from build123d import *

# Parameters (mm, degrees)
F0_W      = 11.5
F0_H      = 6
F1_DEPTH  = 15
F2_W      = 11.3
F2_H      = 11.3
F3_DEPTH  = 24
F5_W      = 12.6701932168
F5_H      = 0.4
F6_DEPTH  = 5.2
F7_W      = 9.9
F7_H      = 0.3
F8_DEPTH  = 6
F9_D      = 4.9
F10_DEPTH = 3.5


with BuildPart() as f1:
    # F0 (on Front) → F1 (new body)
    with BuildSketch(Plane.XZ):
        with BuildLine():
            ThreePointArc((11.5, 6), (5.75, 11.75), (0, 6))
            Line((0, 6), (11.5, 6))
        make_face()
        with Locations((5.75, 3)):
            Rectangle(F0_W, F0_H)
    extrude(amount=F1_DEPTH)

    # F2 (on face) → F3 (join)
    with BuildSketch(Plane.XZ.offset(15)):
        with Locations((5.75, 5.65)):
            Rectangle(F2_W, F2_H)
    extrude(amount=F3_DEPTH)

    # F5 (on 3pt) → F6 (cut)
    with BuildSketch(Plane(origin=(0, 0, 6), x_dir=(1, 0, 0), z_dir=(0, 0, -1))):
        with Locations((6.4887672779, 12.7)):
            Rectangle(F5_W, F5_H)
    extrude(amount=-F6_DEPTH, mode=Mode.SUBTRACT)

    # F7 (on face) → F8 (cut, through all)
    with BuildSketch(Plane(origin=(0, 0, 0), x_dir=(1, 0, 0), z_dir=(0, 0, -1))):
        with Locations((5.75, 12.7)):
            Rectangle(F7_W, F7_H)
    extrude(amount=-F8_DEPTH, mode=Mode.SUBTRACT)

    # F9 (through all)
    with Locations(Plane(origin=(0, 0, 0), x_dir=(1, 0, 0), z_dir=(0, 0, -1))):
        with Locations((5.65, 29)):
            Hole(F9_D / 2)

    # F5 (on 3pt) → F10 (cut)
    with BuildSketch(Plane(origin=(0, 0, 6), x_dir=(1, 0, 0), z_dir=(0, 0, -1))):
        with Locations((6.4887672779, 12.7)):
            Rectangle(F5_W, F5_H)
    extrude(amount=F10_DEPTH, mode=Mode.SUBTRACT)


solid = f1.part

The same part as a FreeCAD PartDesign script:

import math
import FreeCAD as App
import Part
import Sketcher
Q = App.Units.Quantity

doc = App.newDocument("Part")
params = doc.addObject("Spreadsheet::Sheet", "Params")
for row, (alias, value) in enumerate([
    ("sketch1_height", "6 mm"),
    ("sketch1_radius", "5.75 mm"),
    ("pad1_length", "15 mm"),
    ("sketch2_width", "11.3 mm"),
    ("pad2_length", "24 mm"),
    ("sketch3_height", "0.4 mm"),
    ("pocket1_length", "5.2 mm"),
    ("sketch4_width", "9.9 mm"),
    ("sketch4_height", "0.3 mm"),
    ("pocket2_length", "6 mm"),
    ("sketch5_diameter", "4.9 mm"),
    ("hole_diameter", "4.9 mm"),
    ("sketch6_height", "0.4 mm"),
    ("pocket3_length", "3.5 mm"),
], start=1):
    params.set(f"A{row}", alias)
    params.set(f"B{row}", "=" + value)
    params.setAlias(f"B{row}", alias)

body = doc.addObject("PartDesign::Body", "Body")

sketch1 = doc.addObject("Sketcher::SketchObject", "Sketch")
body.addObject(sketch1)
sketch1.AttachmentSupport = (doc.XZ_Plane, [""])
sketch1.MapMode = "FlatFace"
sketch1.addGeometry([
    Part.ArcOfCircle(Part.Circle(App.Vector(6, 6, 0), App.Vector(0, 0, 1), 6), math.radians(0), math.radians(180)),
    Part.LineSegment(App.Vector(0, 6, 0), App.Vector(0, 0, 0)),
    Part.LineSegment(App.Vector(0, 0, 0), App.Vector(12, 0, 0)),
    Part.LineSegment(App.Vector(12, 0, 0), App.Vector(12, 6, 0)),
], False)
sketch1.addConstraint([
    Sketcher.Constraint("Tangent", 0, 2, 1, 1),
    Sketcher.Constraint("Coincident", 1, 2, 2, 1),
    Sketcher.Constraint("Coincident", 2, 2, 3, 1),
    Sketcher.Constraint("Tangent", 3, 2, 0, 1),
    Sketcher.Constraint("Vertical", 1),
    Sketcher.Constraint("Horizontal", 2),
    Sketcher.Constraint("Vertical", 3),
    Sketcher.Constraint("Coincident", 1, 2, -1, 1),
    Sketcher.Constraint("DistanceY", 1, 2, 1, 1, Q("6 mm")),
    Sketcher.Constraint("Radius", 0, Q("5.75 mm")),
])
sketch1.setExpression("Constraints[8]", "Params.sketch1_height")
sketch1.setExpression("Constraints[9]", "Params.sketch1_radius")
pad1 = doc.addObject("PartDesign::Pad", "Pad")
body.addObject(pad1)
pad1.Profile = sketch1
pad1.setExpression("Length", "Params.pad1_length")

sketch2 = doc.addObject("Sketcher::SketchObject", "Sketch001")
body.addObject(sketch2)
sketch2.AttachmentSupport = (doc.XZ_Plane, [""])
sketch2.MapMode = "FlatFace"
sketch2.AttachmentOffset = App.Placement(App.Vector(0, 0, 15), App.Rotation())
sketch2.addGeometry([
    Part.LineSegment(App.Vector(0, 11, 0), App.Vector(0, 0, 0)),
    Part.LineSegment(App.Vector(0, 0, 0), App.Vector(11, 0, 0)),
    Part.LineSegment(App.Vector(11, 0, 0), App.Vector(11, 11, 0)),
    Part.LineSegment(App.Vector(11, 11, 0), App.Vector(0, 11, 0)),
], False)
sketch2.addConstraint([
    Sketcher.Constraint("Coincident", 0, 2, 1, 1),
    Sketcher.Constraint("Coincident", 1, 2, 2, 1),
    Sketcher.Constraint("Coincident", 2, 2, 3, 1),
    Sketcher.Constraint("Coincident", 3, 2, 0, 1),
    Sketcher.Constraint("Vertical", 0),
    Sketcher.Constraint("Horizontal", 1),
    Sketcher.Constraint("Vertical", 2),
    Sketcher.Constraint("Horizontal", 3),
    Sketcher.Constraint("PointOnObject", 0, 2, -1),
    Sketcher.Constraint("Equal", 3, 0),
    Sketcher.Constraint("DistanceX", 1, 1, 1, 2, Q("11.3 mm")),
    Sketcher.Constraint("DistanceX", -1, 1, 0, 2, Q("0.1 mm")),
])
sketch2.setExpression("Constraints[10]", "Params.sketch2_width")
pad2 = doc.addObject("PartDesign::Pad", "Pad001")
body.addObject(pad2)
pad2.Profile = sketch2
pad2.setExpression("Length", "Params.pad2_length")

sketch3 = doc.addObject("Sketcher::SketchObject", "Sketch002")
body.addObject(sketch3)
sketch3.AttachmentSupport = (doc.XY_Plane, [""])
sketch3.MapMode = "FlatFace"
sketch3.AttachmentOffset = App.Placement(App.Vector(0, 0, 6), App.Rotation())
sketch3.addGeometry([
    Part.LineSegment(App.Vector(0.15, -12.9, 0), App.Vector(0.15, -12.5, 0)),
    Part.LineSegment(App.Vector(0.15, -12.5, 0), App.Vector(12.82, -12.5, 0)),
    Part.LineSegment(App.Vector(12.82, -12.5, 0), App.Vector(12.82, -12.9, 0)),
    Part.LineSegment(App.Vector(12.82, -12.9, 0), App.Vector(0.15, -12.9, 0)),
], False)
sketch3.addConstraint([
    Sketcher.Constraint("Coincident", 0, 2, 1, 1),
    Sketcher.Constraint("Coincident", 1, 2, 2, 1),
    Sketcher.Constraint("Coincident", 2, 2, 3, 1),
    Sketcher.Constraint("Coincident", 3, 2, 0, 1),
    Sketcher.Constraint("Vertical", 0),
    Sketcher.Constraint("Horizontal", 1),
    Sketcher.Constraint("Vertical", 2),
    Sketcher.Constraint("Horizontal", 3),
    Sketcher.Constraint("DistanceY", 0, 1, 0, 2, Q("0.4 mm")),
    Sketcher.Constraint("DistanceY", 0, 2, -1, 1, Q("12.5 mm")),
    Sketcher.Constraint("DistanceX", 1, 1, 1, 2, Q("12.670193 mm")),
    Sketcher.Constraint("DistanceX", -1, 1, 0, 2, Q("0.153671 mm")),
])
sketch3.setExpression("Constraints[8]", "Params.sketch3_height")
pocket1 = doc.addObject("PartDesign::Pocket", "Pocket")
body.addObject(pocket1)
pocket1.Profile = sketch3
pocket1.setExpression("Length", "Params.pocket1_length")
pocket1.Reversed = True

sketch4 = doc.addObject("Sketcher::SketchObject", "Sketch003")
body.addObject(sketch4)
sketch4.AttachmentSupport = (doc.XY_Plane, [""])
sketch4.MapMode = "FlatFace"
sketch4.addGeometry([
    Part.LineSegment(App.Vector(0.8, -12.85, 0), App.Vector(0.8, -12.55, 0)),
    Part.LineSegment(App.Vector(0.8, -12.55, 0), App.Vector(10.7, -12.55, 0)),
    Part.LineSegment(App.Vector(10.7, -12.55, 0), App.Vector(10.7, -12.85, 0)),
    Part.LineSegment(App.Vector(10.7, -12.85, 0), App.Vector(0.8, -12.85, 0)),
], False)
sketch4.addConstraint([
    Sketcher.Constraint("Coincident", 0, 2, 1, 1),
    Sketcher.Constraint("Coincident", 1, 2, 2, 1),
    Sketcher.Constraint("Coincident", 2, 2, 3, 1),
    Sketcher.Constraint("Coincident", 3, 2, 0, 1),
    Sketcher.Constraint("Vertical", 0),
    Sketcher.Constraint("Horizontal", 1),
    Sketcher.Constraint("Vertical", 2),
    Sketcher.Constraint("Horizontal", 3),
    Sketcher.Constraint("DistanceX", 1, 1, 1, 2, Q("9.9 mm")),
    Sketcher.Constraint("DistanceY", 0, 1, 0, 2, Q("0.3 mm")),
    Sketcher.Constraint("DistanceX", -1, 1, 0, 2, Q("0.8 mm")),
    Sketcher.Constraint("DistanceY", 0, 2, -1, 1, Q("12.55 mm")),
])
sketch4.setExpression("Constraints[8]", "Params.sketch4_width")
sketch4.setExpression("Constraints[9]", "Params.sketch4_height")
pocket2 = doc.addObject("PartDesign::Pocket", "Pocket001")
body.addObject(pocket2)
pocket2.Profile = sketch4
pocket2.setExpression("Length", "Params.pocket2_length")
pocket2.Reversed = True

sketch5 = doc.addObject("Sketcher::SketchObject", "Sketch004")
body.addObject(sketch5)
sketch5.AttachmentSupport = (doc.XY_Plane, [""])
sketch5.MapMode = "FlatFace"
sketch5.addGeometry(Part.Circle(App.Vector(5.7, -29, 0), App.Vector(0, 0, 1), 2.5), False)
sketch5.addConstraint([
    Sketcher.Constraint("Diameter", 0, Q("4.9 mm")),
    Sketcher.Constraint("DistanceY", 0, 3, -1, 1, Q("29 mm")),
    Sketcher.Constraint("DistanceX", -1, 1, 0, 3, Q("5.65 mm")),
])
sketch5.setExpression("Constraints[0]", "Params.sketch5_diameter")
doc.recompute()
hole = doc.addObject("PartDesign::Hole", "Hole")
body.addObject(hole)
hole.Profile = sketch5
hole.ThreadType = "None"
hole.setExpression("Diameter", "Params.hole_diameter")
hole.DepthType = "ThroughAll"
hole.Reversed = True

sketch6 = doc.addObject("Sketcher::SketchObject", "Sketch005")
body.addObject(sketch6)
sketch6.AttachmentSupport = (doc.XY_Plane, [""])
sketch6.MapMode = "FlatFace"
sketch6.AttachmentOffset = App.Placement(App.Vector(0, 0, 6), App.Rotation())
sketch6.addGeometry([
    Part.LineSegment(App.Vector(0.15, -12.9, 0), App.Vector(0.15, -12.5, 0)),
    Part.LineSegment(App.Vector(0.15, -12.5, 0), App.Vector(12.82, -12.5, 0)),
    Part.LineSegment(App.Vector(12.82, -12.5, 0), App.Vector(12.82, -12.9, 0)),
    Part.LineSegment(App.Vector(12.82, -12.9, 0), App.Vector(0.15, -12.9, 0)),
], False)
sketch6.addConstraint([
    Sketcher.Constraint("Coincident", 0, 2, 1, 1),
    Sketcher.Constraint("Coincident", 1, 2, 2, 1),
    Sketcher.Constraint("Coincident", 2, 2, 3, 1),
    Sketcher.Constraint("Coincident", 3, 2, 0, 1),
    Sketcher.Constraint("Vertical", 0),
    Sketcher.Constraint("Horizontal", 1),
    Sketcher.Constraint("Vertical", 2),
    Sketcher.Constraint("Horizontal", 3),
    Sketcher.Constraint("DistanceY", 0, 1, 0, 2, Q("0.4 mm")),
    Sketcher.Constraint("DistanceY", 0, 2, -1, 1, Q("12.5 mm")),
    Sketcher.Constraint("DistanceX", 1, 1, 1, 2, Q("12.670193 mm")),
    Sketcher.Constraint("DistanceX", -1, 1, 0, 2, Q("0.153671 mm")),
])
sketch6.setExpression("Constraints[8]", "Params.sketch6_height")
pocket3 = doc.addObject("PartDesign::Pocket", "Pocket002")
body.addObject(pocket3)
pocket3.Profile = sketch6
pocket3.setExpression("Length", "Params.pocket3_length")

doc.recompute()
